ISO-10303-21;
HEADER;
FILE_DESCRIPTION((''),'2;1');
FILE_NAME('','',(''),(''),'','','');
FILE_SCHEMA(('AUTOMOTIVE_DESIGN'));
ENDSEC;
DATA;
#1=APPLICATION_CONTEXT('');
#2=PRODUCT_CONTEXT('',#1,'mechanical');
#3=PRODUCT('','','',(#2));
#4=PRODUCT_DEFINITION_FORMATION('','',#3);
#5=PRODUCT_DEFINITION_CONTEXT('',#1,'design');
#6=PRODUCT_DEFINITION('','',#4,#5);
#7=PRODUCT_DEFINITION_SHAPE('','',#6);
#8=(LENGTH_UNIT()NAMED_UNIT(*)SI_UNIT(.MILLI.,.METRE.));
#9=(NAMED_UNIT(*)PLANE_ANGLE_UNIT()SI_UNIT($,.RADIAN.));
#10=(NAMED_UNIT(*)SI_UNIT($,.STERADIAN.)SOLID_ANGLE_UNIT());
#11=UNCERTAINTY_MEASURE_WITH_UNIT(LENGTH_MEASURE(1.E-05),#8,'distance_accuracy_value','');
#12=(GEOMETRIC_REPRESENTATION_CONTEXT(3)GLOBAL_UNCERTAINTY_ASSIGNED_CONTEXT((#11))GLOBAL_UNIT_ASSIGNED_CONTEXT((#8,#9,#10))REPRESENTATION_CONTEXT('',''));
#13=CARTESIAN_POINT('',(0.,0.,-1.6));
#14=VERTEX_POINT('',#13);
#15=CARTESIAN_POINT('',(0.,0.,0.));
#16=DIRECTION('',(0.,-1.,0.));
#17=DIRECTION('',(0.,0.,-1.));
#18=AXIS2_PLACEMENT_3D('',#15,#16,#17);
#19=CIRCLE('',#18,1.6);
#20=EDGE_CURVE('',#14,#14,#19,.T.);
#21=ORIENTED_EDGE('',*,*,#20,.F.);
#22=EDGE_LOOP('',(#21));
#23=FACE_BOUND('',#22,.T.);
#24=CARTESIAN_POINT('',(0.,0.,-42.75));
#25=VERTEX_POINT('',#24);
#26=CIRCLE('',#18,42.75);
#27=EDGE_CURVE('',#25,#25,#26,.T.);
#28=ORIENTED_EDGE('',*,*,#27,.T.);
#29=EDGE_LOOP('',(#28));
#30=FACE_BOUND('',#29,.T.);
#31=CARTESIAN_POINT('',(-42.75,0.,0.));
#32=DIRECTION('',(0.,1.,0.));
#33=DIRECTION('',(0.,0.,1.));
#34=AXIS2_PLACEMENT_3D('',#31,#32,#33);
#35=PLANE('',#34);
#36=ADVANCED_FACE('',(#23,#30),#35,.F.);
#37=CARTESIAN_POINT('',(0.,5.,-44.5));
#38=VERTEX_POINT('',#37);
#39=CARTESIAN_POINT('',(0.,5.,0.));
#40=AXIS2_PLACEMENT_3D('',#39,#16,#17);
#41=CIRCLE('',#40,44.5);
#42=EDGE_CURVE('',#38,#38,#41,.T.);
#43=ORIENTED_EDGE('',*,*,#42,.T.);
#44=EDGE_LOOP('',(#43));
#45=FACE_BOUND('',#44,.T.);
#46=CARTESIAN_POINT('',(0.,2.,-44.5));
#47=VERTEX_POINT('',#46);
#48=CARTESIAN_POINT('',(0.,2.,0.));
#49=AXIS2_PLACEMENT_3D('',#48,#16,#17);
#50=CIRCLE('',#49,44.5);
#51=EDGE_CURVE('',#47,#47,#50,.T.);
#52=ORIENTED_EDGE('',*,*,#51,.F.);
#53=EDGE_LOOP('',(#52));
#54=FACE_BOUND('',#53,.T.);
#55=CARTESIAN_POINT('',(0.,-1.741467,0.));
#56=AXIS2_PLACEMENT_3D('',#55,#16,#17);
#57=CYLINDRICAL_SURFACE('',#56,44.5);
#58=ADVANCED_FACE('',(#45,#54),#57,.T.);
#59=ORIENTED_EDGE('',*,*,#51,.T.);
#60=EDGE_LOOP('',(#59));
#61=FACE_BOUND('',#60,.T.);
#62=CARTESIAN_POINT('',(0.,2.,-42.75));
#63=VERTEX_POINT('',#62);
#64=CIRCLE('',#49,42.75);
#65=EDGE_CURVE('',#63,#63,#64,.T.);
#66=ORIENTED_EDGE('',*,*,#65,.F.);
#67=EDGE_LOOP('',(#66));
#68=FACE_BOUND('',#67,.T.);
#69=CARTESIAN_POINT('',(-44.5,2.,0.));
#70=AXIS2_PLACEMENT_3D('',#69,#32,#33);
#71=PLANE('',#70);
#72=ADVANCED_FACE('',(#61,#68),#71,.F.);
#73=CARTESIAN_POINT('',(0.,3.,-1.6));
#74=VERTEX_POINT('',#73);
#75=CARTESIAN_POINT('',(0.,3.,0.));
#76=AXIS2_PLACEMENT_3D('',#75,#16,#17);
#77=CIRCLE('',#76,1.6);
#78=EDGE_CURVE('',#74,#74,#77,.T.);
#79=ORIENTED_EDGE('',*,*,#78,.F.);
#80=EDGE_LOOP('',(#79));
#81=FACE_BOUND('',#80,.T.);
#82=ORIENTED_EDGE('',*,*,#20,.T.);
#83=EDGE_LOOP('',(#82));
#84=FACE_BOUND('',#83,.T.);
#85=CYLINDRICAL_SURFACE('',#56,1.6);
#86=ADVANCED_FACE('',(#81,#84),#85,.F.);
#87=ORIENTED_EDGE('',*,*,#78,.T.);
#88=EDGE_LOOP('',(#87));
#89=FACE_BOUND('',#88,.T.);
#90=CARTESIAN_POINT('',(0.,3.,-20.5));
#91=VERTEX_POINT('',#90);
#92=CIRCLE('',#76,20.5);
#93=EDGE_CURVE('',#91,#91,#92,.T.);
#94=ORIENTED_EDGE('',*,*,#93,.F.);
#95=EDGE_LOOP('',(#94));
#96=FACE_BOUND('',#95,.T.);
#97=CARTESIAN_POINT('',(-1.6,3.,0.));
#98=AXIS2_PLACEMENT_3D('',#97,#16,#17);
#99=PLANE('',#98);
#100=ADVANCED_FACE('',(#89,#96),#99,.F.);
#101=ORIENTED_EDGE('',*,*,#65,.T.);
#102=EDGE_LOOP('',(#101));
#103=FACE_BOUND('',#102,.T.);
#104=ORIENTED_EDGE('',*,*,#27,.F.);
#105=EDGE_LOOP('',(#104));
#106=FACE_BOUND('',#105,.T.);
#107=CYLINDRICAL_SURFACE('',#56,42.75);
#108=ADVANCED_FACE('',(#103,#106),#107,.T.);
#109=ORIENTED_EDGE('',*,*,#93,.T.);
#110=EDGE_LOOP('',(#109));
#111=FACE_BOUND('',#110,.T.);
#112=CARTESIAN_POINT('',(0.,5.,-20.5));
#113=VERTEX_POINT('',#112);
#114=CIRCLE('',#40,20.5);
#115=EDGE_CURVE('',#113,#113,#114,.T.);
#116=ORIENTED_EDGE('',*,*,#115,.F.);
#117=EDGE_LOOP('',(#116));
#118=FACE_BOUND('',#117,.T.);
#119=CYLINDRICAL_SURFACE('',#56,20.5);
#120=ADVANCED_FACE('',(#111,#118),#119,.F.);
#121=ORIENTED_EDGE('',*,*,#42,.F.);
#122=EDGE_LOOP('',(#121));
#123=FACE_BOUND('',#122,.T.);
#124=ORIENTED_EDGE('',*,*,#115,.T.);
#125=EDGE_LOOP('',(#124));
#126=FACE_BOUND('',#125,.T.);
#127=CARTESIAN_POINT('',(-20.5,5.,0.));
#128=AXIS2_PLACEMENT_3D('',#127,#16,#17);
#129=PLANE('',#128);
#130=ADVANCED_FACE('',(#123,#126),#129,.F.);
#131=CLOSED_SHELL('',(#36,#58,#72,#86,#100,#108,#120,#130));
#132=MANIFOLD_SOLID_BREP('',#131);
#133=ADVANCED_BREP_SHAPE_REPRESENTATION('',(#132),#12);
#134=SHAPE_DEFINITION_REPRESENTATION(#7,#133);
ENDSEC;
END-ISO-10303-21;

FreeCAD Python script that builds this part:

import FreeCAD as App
import Part
import Sketcher
from FreeCAD import Vector
Q = App.Units.Quantity


def add_polygon(sketch, points):
    """Adds a closed chain of lines whose ends are joined by coincident constraints."""
    first, n = sketch.GeometryCount, len(points)
    for a, b in zip(points, points[1:] + points[:1]):
        sketch.addGeometry(Part.LineSegment(App.Vector(*a, 0), App.Vector(*b, 0)), False)
    for i in range(n):
        sketch.addConstraint(Sketcher.Constraint("Coincident", first + i, 2, first + (i + 1) % n, 1))

doc = App.newDocument("Part")
body = doc.addObject("PartDesign::Body", "Body")

# Sketch on XY plane
sketch1 = body.newObject("Sketcher::SketchObject", "Sketch")
sketch1.AttachmentSupport = (doc.getObject("XY_Plane"), [""])
sketch1.MapMode = "FlatFace"
add_polygon(sketch1, [(-1.6, 0), (-1.6, 3), (-20.5, 3), (-20.5, 5), (-44.5, 5), (-44.5, 2), (-42.8, 2), (-42.8, 0)])  # lines 0-7
sketch1.addConstraint(Sketcher.Constraint("Vertical", 0))
sketch1.addConstraint(Sketcher.Constraint("Horizontal", 1))
sketch1.addConstraint(Sketcher.Constraint("Vertical", 2))
sketch1.addConstraint(Sketcher.Constraint("Horizontal", 3))
sketch1.addConstraint(Sketcher.Constraint("Vertical", 4))
sketch1.addConstraint(Sketcher.Constraint("Horizontal", 5))
sketch1.addConstraint(Sketcher.Constraint("Vertical", 6))
sketch1.addConstraint(Sketcher.Constraint("Horizontal", 7))
sketch1.addConstraint(Sketcher.Constraint("PointOnObject", 6, 2, -1))
sketch1.addConstraint(Sketcher.Constraint("Equal", 0, 4))
sketch1.addConstraint(Sketcher.Constraint("DistanceX", 3, 2, 3, 1, Q("24 mm")))
sketch1.addConstraint(Sketcher.Constraint("DistanceY", 0, 1, 0, 2, Q("3 mm")))
sketch1.addConstraint(Sketcher.Constraint("DistanceY", 2, 1, 2, 2, Q("2 mm")))
sketch1.addConstraint(Sketcher.Constraint("DistanceX", 1, 2, 1, 1, Q("18.9 mm")))
sketch1.addConstraint(Sketcher.Constraint("DistanceX", 5, 1, 5, 2, Q("1.75 mm")))
sketch1.addConstraint(Sketcher.Constraint("DistanceX", 0, 2, -1, 1, Q("1.6 mm")))
revolution = body.newObject("PartDesign::Revolution", "Revolution")
revolution.Profile = sketch1
revolution.ReferenceAxis = (sketch1, ["V_Axis"])
revolution.Angle = 360

doc.recompute()
